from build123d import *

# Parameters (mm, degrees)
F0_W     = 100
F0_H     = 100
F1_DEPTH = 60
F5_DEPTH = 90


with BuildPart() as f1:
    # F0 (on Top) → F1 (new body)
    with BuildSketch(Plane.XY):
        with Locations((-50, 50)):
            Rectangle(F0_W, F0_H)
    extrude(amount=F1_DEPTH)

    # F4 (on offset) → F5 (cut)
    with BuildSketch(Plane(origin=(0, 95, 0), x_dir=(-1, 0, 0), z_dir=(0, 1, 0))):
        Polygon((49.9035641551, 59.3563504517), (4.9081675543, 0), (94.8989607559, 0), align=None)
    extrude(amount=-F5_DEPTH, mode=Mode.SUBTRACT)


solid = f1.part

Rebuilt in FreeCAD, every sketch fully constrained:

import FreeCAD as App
import Part
import Sketcher
Q = App.Units.Quantity

doc = App.newDocument("Part")
params = doc.addObject("Spreadsheet::Sheet", "Params")
for row, (alias, value) in enumerate([
    ("sketch1_width", "100 mm"),
    ("pad1_length", "60 mm"),
    ("pocket1_length", "90 mm"),
], start=1):
    params.set(f"A{row}", alias)
    params.set(f"B{row}", "=" + value)
    params.setAlias(f"B{row}", alias)

body = doc.addObject("PartDesign::Body", "Body")

sketch1 = doc.addObject("Sketcher::SketchObject", "Sketch")
body.addObject(sketch1)
sketch1.AttachmentSupport = (doc.XY_Plane, [""])
sketch1.MapMode = "FlatFace"
sketch1.addGeometry(Part.LineSegment(App.Vector(-100, 100, 0), App.Vector(-100, 0, 0)), False)
sketch1.addGeometry(Part.LineSegment(App.Vector(-100, 0, 0), App.Vector(0, 0, 0)), False)
sketch1.addGeometry(Part.LineSegment(App.Vector(0, 0, 0), App.Vector(0, 100, 0)), False)
sketch1.addGeometry(Part.LineSegment(App.Vector(0, 100, 0), App.Vector(-100, 100, 0)), False)
sketch1.addConstraint(Sketcher.Constraint("Coincident", 0, 2, 1, 1))
sketch1.addConstraint(Sketcher.Constraint("Coincident", 1, 2, 2, 1))
sketch1.addConstraint(Sketcher.Constraint("Coincident", 2, 2, 3, 1))
sketch1.addConstraint(Sketcher.Constraint("Coincident", 3, 2, 0, 1))
sketch1.addConstraint(Sketcher.Constraint("Vertical", 0))
sketch1.addConstraint(Sketcher.Constraint("Horizontal", 1))
sketch1.addConstraint(Sketcher.Constraint("Vertical", 2))
sketch1.addConstraint(Sketcher.Constraint("Horizontal", 3))
sketch1.addConstraint(Sketcher.Constraint("Coincident", 1, 2, -1, 1))
sketch1.addConstraint(Sketcher.Constraint("Equal", 3, 0))
sketch1.addConstraint(Sketcher.Constraint("DistanceX", 1, 1, 1, 2, Q("100 mm")))
sketch1.setExpression("Constraints[10]", "Params.sketch1_width")
pad1 = doc.addObject("PartDesign::Pad", "Pad")
body.addObject(pad1)
pad1.Profile = sketch1
pad1.setExpression("Length", "Params.pad1_length")

sketch2 = doc.addObject("Sketcher::SketchObject", "Sketch001")
body.addObject(sketch2)
sketch2.AttachmentSupport = (doc.XZ_Plane, [""])
sketch2.MapMode = "FlatFace"
sketch2.AttachmentOffset = App.Placement(App.Vector(0, 0, -95), App.Rotation())
sketch2.addGeometry(Part.LineSegment(App.Vector(-50, 59, 0), App.Vector(-5, 0, 0)), False)
sketch2.addGeometry(Part.LineSegment(App.Vector(-5, 0, 0), App.Vector(-95, 0, 0)), False)
sketch2.addGeometry(Part.LineSegment(App.Vector(-95, 0, 0), App.Vector(-50, 59, 0)), False)
sketch2.addConstraint(Sketcher.Constraint("Coincident", 0, 2, 1, 1))
sketch2.addConstraint(Sketcher.Constraint("Coincident", 1, 2, 2, 1))
sketch2.addConstraint(Sketcher.Constraint("Coincident", 2, 2, 0, 1))
sketch2.addConstraint(Sketcher.Constraint("Horizontal", 1))
sketch2.addConstraint(Sketcher.Constraint("PointOnObject", 0, 2, -1))
sketch2.addConstraint(Sketcher.Constraint("Equal", 0, 2))
sketch2.addConstraint(Sketcher.Constraint("Distance", 0, Q("74.483301 mm")))
sketch2.addConstraint(Sketcher.Constraint("DistanceX", 1, 2, 1, 1, Q("89.990793 mm")))
sketch2.addConstraint(Sketcher.Constraint("DistanceX", 1, 2, -1, 1, Q("94.898961 mm")))
pocket1 = doc.addObject("PartDesign::Pocket", "Pocket")
body.addObject(pocket1)
pocket1.Profile = sketch2
pocket1.setExpression("Length", "Params.pocket1_length")
pocket1.Reversed = True

doc.recompute()
